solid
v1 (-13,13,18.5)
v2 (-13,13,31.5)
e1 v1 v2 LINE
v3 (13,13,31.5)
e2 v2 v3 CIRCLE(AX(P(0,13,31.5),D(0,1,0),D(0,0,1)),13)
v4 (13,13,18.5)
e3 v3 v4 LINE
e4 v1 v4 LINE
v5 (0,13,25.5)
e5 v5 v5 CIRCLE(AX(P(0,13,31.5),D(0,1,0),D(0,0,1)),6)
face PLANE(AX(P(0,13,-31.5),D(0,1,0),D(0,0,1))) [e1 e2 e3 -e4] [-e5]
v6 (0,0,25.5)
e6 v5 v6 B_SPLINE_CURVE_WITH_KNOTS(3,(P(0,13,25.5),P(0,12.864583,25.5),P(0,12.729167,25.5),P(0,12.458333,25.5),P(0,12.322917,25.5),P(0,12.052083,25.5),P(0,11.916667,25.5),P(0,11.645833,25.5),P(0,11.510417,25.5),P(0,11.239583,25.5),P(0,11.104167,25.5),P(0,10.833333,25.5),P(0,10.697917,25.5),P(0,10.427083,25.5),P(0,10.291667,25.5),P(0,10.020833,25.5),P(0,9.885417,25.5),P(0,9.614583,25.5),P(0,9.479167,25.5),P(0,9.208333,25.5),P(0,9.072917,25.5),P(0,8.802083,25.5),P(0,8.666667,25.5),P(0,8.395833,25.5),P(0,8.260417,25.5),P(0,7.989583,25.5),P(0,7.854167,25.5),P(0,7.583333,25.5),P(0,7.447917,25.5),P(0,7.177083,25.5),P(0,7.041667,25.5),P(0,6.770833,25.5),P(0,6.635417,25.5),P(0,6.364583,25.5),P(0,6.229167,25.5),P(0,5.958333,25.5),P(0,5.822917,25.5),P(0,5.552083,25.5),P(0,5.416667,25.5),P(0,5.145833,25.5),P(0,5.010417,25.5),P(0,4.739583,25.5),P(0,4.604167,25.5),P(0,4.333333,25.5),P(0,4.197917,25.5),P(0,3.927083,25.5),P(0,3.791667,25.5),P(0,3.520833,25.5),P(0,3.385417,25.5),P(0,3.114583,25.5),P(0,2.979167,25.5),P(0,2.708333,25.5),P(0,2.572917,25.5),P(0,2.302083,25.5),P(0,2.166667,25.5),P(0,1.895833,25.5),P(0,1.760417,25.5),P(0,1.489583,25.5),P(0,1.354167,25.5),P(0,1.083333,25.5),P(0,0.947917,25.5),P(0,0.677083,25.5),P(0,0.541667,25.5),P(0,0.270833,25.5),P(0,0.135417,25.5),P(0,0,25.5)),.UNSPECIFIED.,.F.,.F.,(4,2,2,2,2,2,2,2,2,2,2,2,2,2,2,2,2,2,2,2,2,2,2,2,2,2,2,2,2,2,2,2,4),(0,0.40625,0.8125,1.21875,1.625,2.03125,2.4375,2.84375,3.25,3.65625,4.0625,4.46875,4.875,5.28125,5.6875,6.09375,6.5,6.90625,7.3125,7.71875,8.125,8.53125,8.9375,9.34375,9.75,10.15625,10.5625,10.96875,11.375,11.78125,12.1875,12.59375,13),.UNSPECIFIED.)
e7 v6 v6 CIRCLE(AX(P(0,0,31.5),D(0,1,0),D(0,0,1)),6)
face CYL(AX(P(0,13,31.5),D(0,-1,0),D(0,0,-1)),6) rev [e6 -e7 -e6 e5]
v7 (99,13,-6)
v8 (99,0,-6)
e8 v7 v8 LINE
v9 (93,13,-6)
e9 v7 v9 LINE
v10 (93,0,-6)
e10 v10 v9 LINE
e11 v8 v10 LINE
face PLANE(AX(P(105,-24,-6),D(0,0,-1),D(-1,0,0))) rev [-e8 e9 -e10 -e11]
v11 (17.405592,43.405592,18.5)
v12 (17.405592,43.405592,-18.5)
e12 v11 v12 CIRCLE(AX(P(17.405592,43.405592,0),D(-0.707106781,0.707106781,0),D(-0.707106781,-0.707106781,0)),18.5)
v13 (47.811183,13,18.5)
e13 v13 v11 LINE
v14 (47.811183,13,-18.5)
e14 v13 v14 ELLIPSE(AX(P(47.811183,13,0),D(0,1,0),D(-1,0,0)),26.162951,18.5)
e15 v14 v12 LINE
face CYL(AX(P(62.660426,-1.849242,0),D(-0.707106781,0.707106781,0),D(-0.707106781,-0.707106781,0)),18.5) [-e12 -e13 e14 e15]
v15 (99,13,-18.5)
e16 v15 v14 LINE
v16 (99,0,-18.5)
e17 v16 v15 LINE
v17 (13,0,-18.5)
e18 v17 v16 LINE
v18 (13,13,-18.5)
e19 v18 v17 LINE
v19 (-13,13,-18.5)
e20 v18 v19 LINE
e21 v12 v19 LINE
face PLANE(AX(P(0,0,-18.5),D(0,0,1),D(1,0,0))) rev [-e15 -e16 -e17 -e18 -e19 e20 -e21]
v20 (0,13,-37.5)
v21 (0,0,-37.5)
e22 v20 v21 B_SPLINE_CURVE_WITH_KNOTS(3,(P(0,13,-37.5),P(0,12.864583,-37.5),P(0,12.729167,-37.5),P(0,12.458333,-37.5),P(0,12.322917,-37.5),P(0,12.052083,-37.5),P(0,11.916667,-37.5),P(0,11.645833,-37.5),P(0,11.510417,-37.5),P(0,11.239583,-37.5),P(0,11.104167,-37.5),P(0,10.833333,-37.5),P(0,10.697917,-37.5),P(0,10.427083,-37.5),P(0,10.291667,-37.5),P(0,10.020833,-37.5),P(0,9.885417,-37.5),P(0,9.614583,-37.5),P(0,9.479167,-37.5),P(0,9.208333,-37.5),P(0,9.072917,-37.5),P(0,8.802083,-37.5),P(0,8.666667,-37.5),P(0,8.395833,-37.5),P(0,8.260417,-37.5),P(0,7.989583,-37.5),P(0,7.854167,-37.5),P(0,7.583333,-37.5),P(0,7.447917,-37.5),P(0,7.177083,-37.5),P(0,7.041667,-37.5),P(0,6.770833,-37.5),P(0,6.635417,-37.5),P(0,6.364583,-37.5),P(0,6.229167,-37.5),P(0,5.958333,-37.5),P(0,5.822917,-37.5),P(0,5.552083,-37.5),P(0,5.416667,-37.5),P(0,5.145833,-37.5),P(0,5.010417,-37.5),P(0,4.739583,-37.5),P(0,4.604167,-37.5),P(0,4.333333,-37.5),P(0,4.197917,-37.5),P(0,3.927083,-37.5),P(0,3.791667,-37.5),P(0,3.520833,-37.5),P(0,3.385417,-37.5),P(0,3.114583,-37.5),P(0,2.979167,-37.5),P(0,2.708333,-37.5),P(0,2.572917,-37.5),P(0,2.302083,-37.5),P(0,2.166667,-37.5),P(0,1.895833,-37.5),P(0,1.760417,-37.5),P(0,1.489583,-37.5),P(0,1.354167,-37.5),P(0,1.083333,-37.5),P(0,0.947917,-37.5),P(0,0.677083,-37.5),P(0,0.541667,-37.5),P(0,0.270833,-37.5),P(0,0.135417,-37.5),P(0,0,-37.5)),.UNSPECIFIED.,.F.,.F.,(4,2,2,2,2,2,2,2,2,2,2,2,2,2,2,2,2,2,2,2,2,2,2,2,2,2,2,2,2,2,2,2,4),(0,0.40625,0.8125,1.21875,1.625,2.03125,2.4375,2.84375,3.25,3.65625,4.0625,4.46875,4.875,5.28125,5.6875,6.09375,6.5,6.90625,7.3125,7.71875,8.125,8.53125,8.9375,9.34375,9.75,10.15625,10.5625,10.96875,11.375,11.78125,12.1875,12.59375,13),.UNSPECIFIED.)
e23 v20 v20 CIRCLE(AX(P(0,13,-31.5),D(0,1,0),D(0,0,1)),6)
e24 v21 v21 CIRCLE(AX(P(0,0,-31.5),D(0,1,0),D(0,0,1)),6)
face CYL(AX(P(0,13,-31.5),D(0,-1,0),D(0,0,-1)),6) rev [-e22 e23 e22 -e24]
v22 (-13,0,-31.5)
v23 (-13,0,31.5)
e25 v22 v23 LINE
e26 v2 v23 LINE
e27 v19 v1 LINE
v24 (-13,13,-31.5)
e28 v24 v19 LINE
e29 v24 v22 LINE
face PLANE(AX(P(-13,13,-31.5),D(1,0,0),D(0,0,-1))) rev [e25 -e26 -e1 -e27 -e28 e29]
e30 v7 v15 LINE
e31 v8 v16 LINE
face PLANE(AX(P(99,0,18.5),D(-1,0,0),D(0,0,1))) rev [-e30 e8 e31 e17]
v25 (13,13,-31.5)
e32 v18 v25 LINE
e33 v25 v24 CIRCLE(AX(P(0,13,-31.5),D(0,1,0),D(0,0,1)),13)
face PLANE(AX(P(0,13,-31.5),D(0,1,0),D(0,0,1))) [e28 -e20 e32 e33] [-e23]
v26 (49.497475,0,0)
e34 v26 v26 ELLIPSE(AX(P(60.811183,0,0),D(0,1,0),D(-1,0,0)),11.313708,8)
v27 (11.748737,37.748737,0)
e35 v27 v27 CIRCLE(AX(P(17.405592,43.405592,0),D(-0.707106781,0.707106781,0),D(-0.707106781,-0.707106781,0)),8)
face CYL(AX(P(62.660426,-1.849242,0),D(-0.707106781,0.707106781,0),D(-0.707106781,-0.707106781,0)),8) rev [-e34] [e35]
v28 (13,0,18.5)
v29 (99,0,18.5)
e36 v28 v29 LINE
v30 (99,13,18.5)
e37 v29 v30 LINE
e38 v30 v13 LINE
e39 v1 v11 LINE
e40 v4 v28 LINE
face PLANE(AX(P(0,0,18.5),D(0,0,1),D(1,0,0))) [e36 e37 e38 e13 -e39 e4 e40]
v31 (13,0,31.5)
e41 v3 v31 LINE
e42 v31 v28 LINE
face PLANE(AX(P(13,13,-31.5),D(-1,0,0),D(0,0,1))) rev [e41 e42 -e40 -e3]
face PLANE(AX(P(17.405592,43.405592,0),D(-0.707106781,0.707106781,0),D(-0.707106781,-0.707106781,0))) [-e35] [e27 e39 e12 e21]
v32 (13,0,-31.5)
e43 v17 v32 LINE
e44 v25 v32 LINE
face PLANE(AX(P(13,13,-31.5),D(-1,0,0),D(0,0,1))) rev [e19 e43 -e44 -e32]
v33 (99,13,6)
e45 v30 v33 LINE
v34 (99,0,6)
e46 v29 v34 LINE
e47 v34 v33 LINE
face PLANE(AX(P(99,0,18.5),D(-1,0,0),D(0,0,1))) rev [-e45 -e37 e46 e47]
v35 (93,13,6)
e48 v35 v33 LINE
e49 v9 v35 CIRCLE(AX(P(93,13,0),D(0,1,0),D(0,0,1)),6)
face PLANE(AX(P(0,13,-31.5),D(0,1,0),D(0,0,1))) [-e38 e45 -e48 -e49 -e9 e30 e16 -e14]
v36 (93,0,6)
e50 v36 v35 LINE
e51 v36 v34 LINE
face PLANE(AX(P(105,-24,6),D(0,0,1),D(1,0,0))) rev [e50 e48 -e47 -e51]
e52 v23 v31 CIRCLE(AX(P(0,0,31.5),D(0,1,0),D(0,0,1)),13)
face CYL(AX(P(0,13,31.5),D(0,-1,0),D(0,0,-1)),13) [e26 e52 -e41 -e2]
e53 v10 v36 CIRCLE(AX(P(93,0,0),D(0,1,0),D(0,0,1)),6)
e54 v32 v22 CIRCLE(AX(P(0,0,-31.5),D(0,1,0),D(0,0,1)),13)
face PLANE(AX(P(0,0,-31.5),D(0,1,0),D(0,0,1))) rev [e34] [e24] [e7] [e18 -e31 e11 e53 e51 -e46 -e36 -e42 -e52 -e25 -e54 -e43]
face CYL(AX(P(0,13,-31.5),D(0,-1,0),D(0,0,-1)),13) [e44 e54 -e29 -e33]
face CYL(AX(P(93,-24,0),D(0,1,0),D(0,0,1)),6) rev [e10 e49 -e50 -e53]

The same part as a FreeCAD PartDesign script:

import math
import FreeCAD as App
import Part
import Sketcher

V = App.Vector
Q = App.Units.Quantity

doc = App.newDocument("Part")
body = doc.addObject("PartDesign::Body", "Body")

sketch1 = doc.addObject("Sketcher::SketchObject", "Sketch")
body.addObject(sketch1)
sketch1.AttachmentSupport = (doc.XZ_Plane, [""])
sketch1.MapMode = "FlatFace"
sketch1.addGeometry([
    Part.LineSegment(V(13, 31.5, 0), V(13, -31.5, 0)),
    Part.ArcOfCircle(Part.Circle(V(0, -31.5, 0), V(0, 0, 1), 13), math.radians(180), math.radians(360)),
    Part.LineSegment(V(-13, -31.5, 0), V(-13, 31.5, 0)),
    Part.ArcOfCircle(Part.Circle(V(0, 31.5, 0), V(0, 0, 1), 13), math.radians(0), math.radians(180)),
    Part.Circle(V(0, 31.5, 0), V(0, 0, 1), 6),
    Part.Circle(V(0, -31.5, 0), V(0, 0, 1), 6),
], False)
sketch1.addConstraint([
    Sketcher.Constraint("Tangent", 0, 2, 1, 2),
    Sketcher.Constraint("Tangent", 1, 1, 2, 1),
    Sketcher.Constraint("Tangent", 2, 2, 3, 2),
    Sketcher.Constraint("Tangent", 3, 1, 0, 1),
    Sketcher.Constraint("Vertical", 0),
    Sketcher.Constraint("Vertical", 2),
    Sketcher.Constraint("Coincident", 4, 3, 3, 3),
    Sketcher.Constraint("Coincident", 5, 3, 1, 3),
    Sketcher.Constraint("Equal", 4, 5),
    Sketcher.Constraint("Symmetric", 1, 3, 3, 3, -1, 1),
    Sketcher.Constraint("Diameter", 4, Q("12 mm")),
    Sketcher.Constraint("Radius", 1, Q("13 mm")),
    Sketcher.Constraint("DistanceY", 0, 2, 0, 1, Q("63 mm")),
])
pad1 = doc.addObject("PartDesign::Pad", "Pad")
body.addObject(pad1)
pad1.Profile = sketch1
pad1.Length = 13
pad1.Reversed = True

sketch2 = doc.addObject("Sketcher::SketchObject", "Sketch001")
body.addObject(sketch2)
sketch2.AttachmentSupport = (doc.XY_Plane, [""])
sketch2.MapMode = "FlatFace"
sketch2.addGeometry([
    Part.LineSegment(V(13, 13, 0), V(13, 0, 0)),
    Part.LineSegment(V(13, 0, 0), V(99, 0, 0)),
    Part.LineSegment(V(99, 0, 0), V(99, 13, 0)),
    Part.LineSegment(V(99, 13, 0), V(13, 13, 0)),
], False)
sketch2.addConstraint([
    Sketcher.Constraint("Coincident", 0, 2, 1, 1),
    Sketcher.Constraint("Coincident", 1, 2, 2, 1),
    Sketcher.Constraint("Coincident", 2, 2, 3, 1),
    Sketcher.Constraint("Coincident", 3, 2, 0, 1),
    Sketcher.Constraint("Vertical", 0),
    Sketcher.Constraint("Horizontal", 1),
    Sketcher.Constraint("Vertical", 2),
    Sketcher.Constraint("Horizontal", 3),
    Sketcher.Constraint("PointOnObject", 0, 2, -1),
    Sketcher.Constraint("DistanceX", 1, 1, 1, 2, Q("86 mm")),
    Sketcher.Constraint("DistanceY", 0, 2, 0, 1, Q("13 mm")),
    Sketcher.Constraint("DistanceX", -1, 1, 0, 2, Q("13 mm")),
])
pad2 = doc.addObject("PartDesign::Pad", "Pad001")
body.addObject(pad2)
pad2.Profile = sketch2
pad2.Length = 37
pad2.Midplane = True

sketch3 = doc.addObject("Sketcher::SketchObject", "Sketch002")
body.addObject(sketch3)
sketch3.AttachmentSupport = (doc.XZ_Plane, [""])
sketch3.MapMode = "FlatFace"
sketch3.AttachmentOffset = App.Placement(V(0, 0, -13), App.Rotation())
sketch3.addGeometry([
    Part.LineSegment(V(93, 6, 0), V(105, 6, 0)),
    Part.ArcOfCircle(Part.Circle(V(105, 0, 0), V(0, 0, 1), 6), math.radians(-90), math.radians(90)),
    Part.LineSegment(V(105, -6, 0), V(93, -6, 0)),
    Part.ArcOfCircle(Part.Circle(V(93, 0, 0), V(0, 0, 1), 6), math.radians(90), math.radians(270)),
], False)
sketch3.addConstraint([
    Sketcher.Constraint("Tangent", 0, 2, 1, 2),
    Sketcher.Constraint("Tangent", 1, 1, 2, 1),
    Sketcher.Constraint("Tangent", 2, 2, 3, 2),
    Sketcher.Constraint("Tangent", 3, 1, 0, 1),
    Sketcher.Constraint("Horizontal", 0),
    Sketcher.Constraint("Horizontal", 2),
    Sketcher.Constraint("PointOnObject", 1, 3, -1),
    Sketcher.Constraint("Radius", 1, Q("6 mm")),
    Sketcher.Constraint("DistanceX", 0, 1, 0, 2, Q("12 mm")),
    Sketcher.Constraint("DistanceX", -1, 1, 1, 3, Q("105 mm")),
])
pocket1 = doc.addObject("PartDesign::Pocket", "Pocket")
body.addObject(pocket1)
pocket1.Profile = sketch3
pocket1.Length = 37
pocket1.Reversed = True

sketch4 = doc.addObject("Sketcher::SketchObject", "Sketch003")
body.addObject(sketch4)
sketch4.Placement = App.Placement(V(-13, 13, 0), App.Rotation(V(0, 0, 1), V(0.707106781, 0.707106781, 0), V(-0.707106781, 0.707106781, 0), "ZXY"))
sketch4.addGeometry([
    Part.LineSegment(V(-18.5, 43, 0), V(-18.5, 0, 0)),
    Part.LineSegment(V(-18.5, 0, 0), V(18.5, 0, 0)),
    Part.LineSegment(V(18.5, 0, 0), V(18.5, 43, 0)),
    Part.ArcOfCircle(Part.Circle(V(0, 43, 0), V(0, 0, 1), 18.5), math.radians(0), math.radians(180)),
    Part.Circle(V(0, 43, 0), V(0, 0, 1), 8),
], False)
sketch4.addConstraint([
    Sketcher.Constraint("Coincident", 0, 2, 1, 1),
    Sketcher.Constraint("Coincident", 1, 2, 2, 1),
    Sketcher.Constraint("Tangent", 2, 2, 3, 1),
    Sketcher.Constraint("Tangent", 3, 2, 0, 1),
    Sketcher.Constraint("Vertical", 0),
    Sketcher.Constraint("Horizontal", 1),
    Sketcher.Constraint("Vertical", 2),
    Sketcher.Constraint("Coincident", 4, 3, 3, 3),
    Sketcher.Constraint("Symmetric", 0, 2, 1, 2, -1, 1),
    Sketcher.Constraint("Diameter", 4, Q("16 mm")),
    Sketcher.Constraint("Radius", 3, Q("18.5 mm")),
    Sketcher.Constraint("DistanceY", 0, 2, 0, 1, Q("43 mm")),
])
pad3 = doc.addObject("PartDesign::Pad", "Pad002")
body.addObject(pad3)
pad3.Profile = sketch4
pad3.Length = 64
pad3.Reversed = True

sketch5 = doc.addObject("Sketcher::SketchObject", "Sketch004")
body.addObject(sketch5)
sketch5.AttachmentSupport = (doc.XY_Plane, [""])
sketch5.MapMode = "FlatFace"
sketch5.addGeometry([
    Part.LineSegment(V(-13, 0, 0), V(-13, -33.393711, 0)),
    Part.LineSegment(V(-13, -33.393711, 0), V(99, -33.393711, 0)),
    Part.LineSegment(V(99, -33.393711, 0), V(99, 0, 0)),
    Part.LineSegment(V(99, 0, 0), V(-13, 0, 0)),
], False)
sketch5.addConstraint([
    Sketcher.Constraint("Coincident", 0, 2, 1, 1),
    Sketcher.Constraint("Coincident", 1, 2, 2, 1),
    Sketcher.Constraint("Coincident", 2, 2, 3, 1),
    Sketcher.Constraint("Coincident", 3, 2, 0, 1),
    Sketcher.Constraint("Vertical", 0),
    Sketcher.Constraint("Horizontal", 1),
    Sketcher.Constraint("Vertical", 2),
    Sketcher.Constraint("Horizontal", 3),
    Sketcher.Constraint("PointOnObject", 2, 2, -1),
    Sketcher.Constraint("DistanceX", 1, 1, 1, 2, Q("112 mm")),
    Sketcher.Constraint("DistanceX", 0, 2, -1, 1, Q("13 mm")),
    Sketcher.Constraint("DistanceY", 0, 2, 0, 1, Q("33.393711 mm")),
])
pocket2 = doc.addObject("PartDesign::Pocket", "Pocket001")
body.addObject(pocket2)
pocket2.Profile = sketch5
pocket2.Length = 64
pocket2.Midplane = True

sketch6 = doc.addObject("Sketcher::SketchObject", "Sketch005")
body.addObject(sketch6)
sketch6.Placement = App.Placement(V(-13, 13, 0), App.Rotation(V(0, 0, 1), V(0.707106781, 0.707106781, 0), V(-0.707106781, 0.707106781, 0), "ZXY"))
sketch6.addGeometry(Part.Circle(V(0, 43, 0), V(0, 0, 1), 8), False)
sketch6.addConstraint([
    Sketcher.Constraint("PointOnObject", 0, 3, -2),
    Sketcher.Constraint("Diameter", 0, Q("16 mm")),
    Sketcher.Constraint("DistanceY", -1, 1, 0, 3, Q("43 mm")),
])
pocket3 = doc.addObject("PartDesign::Pocket", "Pocket002")
body.addObject(pocket3)
pocket3.Profile = sketch6
pocket3.Length = 88

doc.recompute()
